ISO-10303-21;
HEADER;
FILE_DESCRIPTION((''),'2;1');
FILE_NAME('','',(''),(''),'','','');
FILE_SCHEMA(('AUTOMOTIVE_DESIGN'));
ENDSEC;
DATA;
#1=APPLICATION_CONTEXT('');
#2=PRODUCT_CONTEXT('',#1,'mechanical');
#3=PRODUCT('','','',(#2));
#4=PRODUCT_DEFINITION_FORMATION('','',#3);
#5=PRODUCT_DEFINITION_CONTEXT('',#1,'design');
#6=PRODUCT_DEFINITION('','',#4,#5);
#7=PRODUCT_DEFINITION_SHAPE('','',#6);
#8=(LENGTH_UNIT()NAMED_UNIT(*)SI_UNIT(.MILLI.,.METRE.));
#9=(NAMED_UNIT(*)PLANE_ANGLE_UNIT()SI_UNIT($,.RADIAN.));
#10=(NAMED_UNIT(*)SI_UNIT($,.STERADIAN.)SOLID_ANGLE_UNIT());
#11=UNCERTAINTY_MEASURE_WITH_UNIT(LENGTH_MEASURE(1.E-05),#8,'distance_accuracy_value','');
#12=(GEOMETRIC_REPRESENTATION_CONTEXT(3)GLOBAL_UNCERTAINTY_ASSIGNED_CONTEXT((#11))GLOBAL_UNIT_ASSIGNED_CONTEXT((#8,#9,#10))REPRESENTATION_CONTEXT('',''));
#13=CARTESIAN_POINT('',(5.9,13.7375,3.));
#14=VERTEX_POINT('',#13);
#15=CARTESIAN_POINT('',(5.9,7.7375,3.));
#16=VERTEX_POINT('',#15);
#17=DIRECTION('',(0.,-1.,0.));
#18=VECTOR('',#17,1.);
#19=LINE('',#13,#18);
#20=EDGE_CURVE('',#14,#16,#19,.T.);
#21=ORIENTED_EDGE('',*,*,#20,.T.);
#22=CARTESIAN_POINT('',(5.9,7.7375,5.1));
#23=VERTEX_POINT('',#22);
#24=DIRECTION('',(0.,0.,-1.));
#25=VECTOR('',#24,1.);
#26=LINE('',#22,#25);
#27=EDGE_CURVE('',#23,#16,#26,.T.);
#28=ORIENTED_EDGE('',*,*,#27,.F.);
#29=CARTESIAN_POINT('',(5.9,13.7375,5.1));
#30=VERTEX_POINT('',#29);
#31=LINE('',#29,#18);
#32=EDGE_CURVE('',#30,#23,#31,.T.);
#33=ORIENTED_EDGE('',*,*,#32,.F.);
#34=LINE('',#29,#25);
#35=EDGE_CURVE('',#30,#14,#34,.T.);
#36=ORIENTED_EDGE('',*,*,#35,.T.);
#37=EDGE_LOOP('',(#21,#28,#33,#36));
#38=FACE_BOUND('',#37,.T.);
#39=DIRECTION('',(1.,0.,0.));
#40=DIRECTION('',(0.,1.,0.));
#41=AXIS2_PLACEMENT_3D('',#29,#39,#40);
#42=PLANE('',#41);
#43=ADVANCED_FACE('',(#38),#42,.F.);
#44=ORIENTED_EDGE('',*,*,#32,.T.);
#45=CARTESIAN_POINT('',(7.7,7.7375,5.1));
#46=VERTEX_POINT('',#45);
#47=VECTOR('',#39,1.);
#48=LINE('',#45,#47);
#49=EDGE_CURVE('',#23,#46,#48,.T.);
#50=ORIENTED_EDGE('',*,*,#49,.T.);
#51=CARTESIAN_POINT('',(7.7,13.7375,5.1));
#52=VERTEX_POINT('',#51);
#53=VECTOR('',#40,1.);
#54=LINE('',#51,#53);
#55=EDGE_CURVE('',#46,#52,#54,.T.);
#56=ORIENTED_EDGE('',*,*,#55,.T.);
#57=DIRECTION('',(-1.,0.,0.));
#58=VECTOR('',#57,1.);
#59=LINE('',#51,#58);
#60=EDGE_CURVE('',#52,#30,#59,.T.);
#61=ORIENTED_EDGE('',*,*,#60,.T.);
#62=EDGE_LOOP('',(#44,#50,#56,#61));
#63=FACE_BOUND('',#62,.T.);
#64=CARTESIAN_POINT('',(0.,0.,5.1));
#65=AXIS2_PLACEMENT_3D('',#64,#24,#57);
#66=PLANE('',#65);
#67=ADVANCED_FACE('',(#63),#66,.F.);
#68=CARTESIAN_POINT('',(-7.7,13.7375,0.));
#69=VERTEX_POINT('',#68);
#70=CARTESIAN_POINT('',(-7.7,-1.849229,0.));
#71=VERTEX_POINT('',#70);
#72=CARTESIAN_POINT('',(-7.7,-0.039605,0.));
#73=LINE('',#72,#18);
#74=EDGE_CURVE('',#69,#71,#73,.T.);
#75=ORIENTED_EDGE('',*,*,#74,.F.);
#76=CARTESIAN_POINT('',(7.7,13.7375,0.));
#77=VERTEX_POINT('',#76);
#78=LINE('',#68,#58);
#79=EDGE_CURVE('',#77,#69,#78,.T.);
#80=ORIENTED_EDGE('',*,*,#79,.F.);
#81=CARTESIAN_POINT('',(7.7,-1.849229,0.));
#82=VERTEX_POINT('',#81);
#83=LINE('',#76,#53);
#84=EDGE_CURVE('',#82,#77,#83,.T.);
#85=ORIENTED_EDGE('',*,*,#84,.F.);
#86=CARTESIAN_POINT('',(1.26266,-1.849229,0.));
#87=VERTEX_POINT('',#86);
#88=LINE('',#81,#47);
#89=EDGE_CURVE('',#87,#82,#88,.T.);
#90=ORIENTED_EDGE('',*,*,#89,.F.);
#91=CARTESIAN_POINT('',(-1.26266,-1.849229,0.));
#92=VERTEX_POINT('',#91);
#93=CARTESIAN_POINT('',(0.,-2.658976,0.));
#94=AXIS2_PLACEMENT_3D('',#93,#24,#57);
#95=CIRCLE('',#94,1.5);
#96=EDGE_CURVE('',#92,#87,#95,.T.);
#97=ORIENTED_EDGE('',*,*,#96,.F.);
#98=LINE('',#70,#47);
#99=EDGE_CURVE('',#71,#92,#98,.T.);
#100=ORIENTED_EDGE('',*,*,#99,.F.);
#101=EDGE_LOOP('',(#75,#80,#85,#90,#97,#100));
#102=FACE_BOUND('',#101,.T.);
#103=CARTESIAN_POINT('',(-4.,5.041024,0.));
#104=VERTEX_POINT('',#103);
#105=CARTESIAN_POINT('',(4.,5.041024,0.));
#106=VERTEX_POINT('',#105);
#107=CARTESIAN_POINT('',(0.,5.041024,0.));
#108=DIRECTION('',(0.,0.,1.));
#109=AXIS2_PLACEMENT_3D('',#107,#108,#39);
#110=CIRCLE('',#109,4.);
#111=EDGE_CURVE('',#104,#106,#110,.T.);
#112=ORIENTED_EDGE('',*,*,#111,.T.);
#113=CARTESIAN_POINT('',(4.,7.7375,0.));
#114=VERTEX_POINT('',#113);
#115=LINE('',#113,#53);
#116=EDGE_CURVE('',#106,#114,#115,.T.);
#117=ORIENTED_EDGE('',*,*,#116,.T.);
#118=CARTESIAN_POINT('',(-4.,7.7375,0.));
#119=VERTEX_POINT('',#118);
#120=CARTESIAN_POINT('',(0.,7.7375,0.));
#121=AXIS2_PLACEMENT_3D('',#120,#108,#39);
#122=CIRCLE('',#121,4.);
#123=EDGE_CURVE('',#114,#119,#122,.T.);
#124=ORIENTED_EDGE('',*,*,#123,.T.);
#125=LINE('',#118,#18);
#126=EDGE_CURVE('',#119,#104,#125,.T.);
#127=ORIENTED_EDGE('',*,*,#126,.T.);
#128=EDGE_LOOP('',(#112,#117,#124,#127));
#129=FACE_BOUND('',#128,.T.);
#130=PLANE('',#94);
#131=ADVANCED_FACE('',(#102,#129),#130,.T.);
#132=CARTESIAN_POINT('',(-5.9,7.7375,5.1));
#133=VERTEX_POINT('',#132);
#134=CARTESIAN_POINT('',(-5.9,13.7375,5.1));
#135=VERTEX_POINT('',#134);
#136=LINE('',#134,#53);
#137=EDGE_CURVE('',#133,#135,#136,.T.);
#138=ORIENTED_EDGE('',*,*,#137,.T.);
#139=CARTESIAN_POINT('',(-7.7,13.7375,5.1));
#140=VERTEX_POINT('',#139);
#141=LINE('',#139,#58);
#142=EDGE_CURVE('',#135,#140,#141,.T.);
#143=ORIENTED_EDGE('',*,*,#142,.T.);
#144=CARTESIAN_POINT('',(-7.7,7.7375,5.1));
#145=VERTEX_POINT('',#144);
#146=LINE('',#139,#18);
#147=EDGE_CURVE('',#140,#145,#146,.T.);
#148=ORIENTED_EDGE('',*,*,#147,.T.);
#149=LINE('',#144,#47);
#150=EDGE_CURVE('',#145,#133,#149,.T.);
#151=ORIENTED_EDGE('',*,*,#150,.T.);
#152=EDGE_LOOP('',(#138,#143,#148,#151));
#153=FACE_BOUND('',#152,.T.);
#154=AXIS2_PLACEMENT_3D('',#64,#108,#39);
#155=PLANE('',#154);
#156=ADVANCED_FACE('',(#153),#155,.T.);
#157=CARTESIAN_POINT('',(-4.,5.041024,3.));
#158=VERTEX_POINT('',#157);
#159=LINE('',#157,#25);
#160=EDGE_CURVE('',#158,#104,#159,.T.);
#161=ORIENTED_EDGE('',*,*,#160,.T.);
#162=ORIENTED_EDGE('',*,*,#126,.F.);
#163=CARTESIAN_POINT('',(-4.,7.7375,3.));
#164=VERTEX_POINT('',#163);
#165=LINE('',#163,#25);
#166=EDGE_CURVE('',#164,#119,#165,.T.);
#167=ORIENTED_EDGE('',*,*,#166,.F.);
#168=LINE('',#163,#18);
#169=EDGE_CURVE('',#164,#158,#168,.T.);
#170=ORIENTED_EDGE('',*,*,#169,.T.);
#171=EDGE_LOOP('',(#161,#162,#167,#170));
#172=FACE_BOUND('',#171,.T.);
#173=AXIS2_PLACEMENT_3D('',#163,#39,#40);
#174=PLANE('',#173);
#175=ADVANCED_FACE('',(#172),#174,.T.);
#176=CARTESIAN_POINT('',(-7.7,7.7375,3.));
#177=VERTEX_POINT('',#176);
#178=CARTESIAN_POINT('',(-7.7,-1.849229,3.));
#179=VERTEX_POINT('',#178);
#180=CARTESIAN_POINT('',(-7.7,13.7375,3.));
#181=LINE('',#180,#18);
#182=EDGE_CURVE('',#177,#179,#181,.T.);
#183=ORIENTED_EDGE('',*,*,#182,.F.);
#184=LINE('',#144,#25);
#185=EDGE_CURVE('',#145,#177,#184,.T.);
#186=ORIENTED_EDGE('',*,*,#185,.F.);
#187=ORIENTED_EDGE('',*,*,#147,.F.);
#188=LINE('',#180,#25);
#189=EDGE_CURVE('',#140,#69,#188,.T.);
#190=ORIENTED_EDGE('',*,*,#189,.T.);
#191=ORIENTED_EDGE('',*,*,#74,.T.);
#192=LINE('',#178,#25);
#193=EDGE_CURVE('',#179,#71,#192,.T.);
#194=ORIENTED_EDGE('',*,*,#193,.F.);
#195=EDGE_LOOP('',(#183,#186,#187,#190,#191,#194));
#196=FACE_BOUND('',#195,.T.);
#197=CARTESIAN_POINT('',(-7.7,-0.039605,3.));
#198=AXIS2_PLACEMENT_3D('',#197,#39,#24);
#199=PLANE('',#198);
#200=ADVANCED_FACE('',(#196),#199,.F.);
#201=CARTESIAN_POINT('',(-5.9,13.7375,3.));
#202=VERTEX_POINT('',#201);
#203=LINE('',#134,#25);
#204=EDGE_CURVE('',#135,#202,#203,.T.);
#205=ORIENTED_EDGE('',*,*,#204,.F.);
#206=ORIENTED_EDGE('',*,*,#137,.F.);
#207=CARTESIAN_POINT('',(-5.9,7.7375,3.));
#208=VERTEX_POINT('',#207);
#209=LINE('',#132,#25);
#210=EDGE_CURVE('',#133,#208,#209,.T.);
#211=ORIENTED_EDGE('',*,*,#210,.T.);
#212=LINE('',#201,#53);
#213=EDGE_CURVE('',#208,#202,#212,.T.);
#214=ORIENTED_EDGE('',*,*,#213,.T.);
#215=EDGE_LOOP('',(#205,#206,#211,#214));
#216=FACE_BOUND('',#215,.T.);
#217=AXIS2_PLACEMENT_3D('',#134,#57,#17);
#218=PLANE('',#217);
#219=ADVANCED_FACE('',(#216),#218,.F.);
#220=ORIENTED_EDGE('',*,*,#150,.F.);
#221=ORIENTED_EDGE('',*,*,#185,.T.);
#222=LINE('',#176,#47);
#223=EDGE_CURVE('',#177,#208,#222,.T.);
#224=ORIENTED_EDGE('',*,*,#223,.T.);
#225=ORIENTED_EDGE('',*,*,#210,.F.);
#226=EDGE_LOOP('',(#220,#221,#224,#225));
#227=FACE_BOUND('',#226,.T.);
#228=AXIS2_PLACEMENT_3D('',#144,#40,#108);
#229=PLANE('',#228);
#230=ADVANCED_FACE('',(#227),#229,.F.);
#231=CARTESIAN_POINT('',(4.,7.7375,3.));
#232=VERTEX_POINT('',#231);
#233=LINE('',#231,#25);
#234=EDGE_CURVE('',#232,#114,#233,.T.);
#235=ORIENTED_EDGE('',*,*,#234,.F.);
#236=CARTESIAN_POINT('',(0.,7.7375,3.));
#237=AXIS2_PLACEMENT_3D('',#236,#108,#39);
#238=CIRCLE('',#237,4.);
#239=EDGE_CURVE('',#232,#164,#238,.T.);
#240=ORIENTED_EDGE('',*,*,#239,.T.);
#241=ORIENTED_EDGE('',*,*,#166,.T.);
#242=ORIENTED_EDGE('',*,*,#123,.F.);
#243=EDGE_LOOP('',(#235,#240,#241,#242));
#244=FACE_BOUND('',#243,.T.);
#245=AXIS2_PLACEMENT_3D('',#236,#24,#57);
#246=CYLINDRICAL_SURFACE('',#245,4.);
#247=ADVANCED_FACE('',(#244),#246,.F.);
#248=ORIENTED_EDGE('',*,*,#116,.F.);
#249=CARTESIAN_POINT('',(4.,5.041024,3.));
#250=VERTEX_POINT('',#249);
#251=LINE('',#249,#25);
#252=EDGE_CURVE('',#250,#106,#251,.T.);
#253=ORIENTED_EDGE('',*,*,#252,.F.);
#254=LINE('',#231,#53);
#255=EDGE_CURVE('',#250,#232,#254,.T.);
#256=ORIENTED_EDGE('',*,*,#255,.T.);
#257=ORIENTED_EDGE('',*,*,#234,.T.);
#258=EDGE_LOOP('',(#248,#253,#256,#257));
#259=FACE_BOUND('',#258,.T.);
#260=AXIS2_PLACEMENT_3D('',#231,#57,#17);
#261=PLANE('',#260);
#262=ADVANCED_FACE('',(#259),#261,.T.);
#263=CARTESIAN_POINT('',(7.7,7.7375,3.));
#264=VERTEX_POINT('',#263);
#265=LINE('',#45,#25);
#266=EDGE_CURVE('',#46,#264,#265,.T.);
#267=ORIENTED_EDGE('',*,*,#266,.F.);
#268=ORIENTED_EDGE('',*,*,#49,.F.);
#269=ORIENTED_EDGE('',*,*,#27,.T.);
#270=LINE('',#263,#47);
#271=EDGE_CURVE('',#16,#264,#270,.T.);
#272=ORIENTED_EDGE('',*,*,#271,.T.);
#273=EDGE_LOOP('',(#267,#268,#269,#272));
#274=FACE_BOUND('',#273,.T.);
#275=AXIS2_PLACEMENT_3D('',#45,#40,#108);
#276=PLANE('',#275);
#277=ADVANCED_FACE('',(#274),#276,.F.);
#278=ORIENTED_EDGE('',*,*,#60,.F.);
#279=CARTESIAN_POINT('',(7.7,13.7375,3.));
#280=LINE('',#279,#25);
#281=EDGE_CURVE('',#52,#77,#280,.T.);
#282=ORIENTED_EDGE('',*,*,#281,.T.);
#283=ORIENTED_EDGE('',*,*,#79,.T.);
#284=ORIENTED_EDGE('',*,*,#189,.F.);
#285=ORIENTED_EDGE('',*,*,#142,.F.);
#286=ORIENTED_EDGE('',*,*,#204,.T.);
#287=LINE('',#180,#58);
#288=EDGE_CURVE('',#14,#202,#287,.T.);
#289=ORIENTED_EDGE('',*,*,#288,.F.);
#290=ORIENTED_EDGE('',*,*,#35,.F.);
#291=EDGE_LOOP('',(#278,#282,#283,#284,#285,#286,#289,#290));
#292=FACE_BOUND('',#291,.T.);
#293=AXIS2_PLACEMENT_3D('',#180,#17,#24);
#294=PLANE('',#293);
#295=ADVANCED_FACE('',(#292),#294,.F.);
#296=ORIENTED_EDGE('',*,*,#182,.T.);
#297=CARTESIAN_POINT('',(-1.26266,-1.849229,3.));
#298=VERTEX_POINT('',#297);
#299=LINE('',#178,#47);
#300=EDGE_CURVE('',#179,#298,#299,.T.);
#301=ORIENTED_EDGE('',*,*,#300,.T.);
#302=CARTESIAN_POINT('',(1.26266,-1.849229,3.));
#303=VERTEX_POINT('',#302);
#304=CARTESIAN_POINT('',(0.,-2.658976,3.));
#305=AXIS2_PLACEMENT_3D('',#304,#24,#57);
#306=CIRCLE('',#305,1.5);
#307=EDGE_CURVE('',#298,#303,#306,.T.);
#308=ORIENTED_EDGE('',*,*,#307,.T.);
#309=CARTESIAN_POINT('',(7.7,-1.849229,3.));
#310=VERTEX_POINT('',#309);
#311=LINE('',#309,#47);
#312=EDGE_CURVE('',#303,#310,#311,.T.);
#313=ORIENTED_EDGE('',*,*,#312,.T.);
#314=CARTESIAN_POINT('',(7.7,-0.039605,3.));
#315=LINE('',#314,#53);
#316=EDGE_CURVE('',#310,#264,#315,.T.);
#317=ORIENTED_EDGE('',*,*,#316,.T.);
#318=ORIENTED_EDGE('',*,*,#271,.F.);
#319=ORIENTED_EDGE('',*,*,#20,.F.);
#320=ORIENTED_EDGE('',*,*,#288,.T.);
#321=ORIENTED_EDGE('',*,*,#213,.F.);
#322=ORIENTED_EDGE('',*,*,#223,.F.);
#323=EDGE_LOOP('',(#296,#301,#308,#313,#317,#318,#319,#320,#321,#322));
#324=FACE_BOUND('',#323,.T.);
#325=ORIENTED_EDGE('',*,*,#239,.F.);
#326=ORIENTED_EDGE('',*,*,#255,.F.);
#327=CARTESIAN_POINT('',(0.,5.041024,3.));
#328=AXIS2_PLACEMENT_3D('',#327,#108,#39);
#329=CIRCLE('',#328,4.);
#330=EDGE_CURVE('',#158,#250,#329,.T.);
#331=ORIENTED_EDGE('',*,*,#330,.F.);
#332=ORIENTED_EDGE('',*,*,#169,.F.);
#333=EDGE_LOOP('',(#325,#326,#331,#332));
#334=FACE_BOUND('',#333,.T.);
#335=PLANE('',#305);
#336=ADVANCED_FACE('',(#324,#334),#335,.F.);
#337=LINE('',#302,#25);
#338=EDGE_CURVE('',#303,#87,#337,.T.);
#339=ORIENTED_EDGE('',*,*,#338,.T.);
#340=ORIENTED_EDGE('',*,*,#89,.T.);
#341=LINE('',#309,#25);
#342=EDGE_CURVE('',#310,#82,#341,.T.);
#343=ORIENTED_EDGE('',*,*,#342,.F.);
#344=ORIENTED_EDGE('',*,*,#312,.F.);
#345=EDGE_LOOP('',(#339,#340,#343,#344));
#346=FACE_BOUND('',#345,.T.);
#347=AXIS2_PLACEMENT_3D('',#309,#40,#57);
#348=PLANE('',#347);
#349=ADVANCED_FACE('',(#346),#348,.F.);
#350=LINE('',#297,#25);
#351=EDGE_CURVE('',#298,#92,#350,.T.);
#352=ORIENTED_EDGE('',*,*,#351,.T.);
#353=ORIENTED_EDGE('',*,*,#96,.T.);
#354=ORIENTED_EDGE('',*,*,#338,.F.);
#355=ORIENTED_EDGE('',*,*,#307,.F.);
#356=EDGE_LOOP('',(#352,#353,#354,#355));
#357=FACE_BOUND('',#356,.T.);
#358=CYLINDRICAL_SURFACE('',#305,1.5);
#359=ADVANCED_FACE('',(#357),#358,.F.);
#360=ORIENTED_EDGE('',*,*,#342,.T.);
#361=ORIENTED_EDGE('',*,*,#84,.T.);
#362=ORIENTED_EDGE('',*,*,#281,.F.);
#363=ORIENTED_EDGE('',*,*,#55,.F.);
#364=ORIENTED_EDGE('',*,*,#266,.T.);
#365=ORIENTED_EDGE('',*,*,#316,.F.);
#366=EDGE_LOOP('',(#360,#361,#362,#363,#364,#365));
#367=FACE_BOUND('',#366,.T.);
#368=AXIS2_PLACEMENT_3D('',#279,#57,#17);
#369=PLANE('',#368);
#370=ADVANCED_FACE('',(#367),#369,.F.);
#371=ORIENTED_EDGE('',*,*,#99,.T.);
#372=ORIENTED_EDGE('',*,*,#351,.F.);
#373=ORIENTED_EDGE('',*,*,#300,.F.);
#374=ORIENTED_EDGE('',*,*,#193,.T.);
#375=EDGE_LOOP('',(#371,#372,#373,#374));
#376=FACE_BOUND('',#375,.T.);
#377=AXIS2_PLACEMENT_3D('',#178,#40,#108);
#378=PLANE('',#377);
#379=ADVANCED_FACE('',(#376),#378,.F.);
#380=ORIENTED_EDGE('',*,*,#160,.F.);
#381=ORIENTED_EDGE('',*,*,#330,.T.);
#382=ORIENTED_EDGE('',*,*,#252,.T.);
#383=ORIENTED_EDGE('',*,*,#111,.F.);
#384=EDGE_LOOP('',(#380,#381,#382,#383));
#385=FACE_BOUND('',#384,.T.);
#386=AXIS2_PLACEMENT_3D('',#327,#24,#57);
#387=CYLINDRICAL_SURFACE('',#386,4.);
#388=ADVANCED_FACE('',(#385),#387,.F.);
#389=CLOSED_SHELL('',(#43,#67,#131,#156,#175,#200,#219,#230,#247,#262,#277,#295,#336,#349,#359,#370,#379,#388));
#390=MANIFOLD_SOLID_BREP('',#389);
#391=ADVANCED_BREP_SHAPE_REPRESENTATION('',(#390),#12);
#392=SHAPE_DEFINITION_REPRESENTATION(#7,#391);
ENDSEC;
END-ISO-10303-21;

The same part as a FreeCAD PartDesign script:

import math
import FreeCAD as App
import Part
import Sketcher
from FreeCAD import Vector
Q = App.Units.Quantity

doc = App.newDocument("Part")
params = doc.addObject("Spreadsheet::Sheet", "Params")
for row, (alias, value) in enumerate([
    ("sketch1_radius", "4 mm"),
    ("sketch1_radius2", "1.5 mm"),
    ("sketch1_width", "15.4 mm"),
    ("pad1_length", "3 mm"),
    ("sketch2_height", "6 mm"),
    ("sketch2_width", "1.8 mm"),
    ("pad2_length", "2.1 mm"),
], start=1):
    params.set(f"A{row}", alias)
    params.set(f"B{row}", "=" + value)
    params.setAlias(f"B{row}", alias)

body = doc.addObject("PartDesign::Body", "Body")

sketch1 = body.newObject("Sketcher::SketchObject", "Sketch")
sketch1.AttachmentSupport = (doc.getObject("XY_Plane"), [""])
sketch1.MapMode = "FlatFace"
sketch1.addGeometry([
    Part.LineSegment(Vector(7.7, 13.7, 0), Vector(-7.7, 13.7, 0)),
    Part.LineSegment(Vector(-7.7, 13.7, 0), Vector(-7.7, -1.8, 0)),
    Part.LineSegment(Vector(-7.7, -1.8, 0), Vector(-1.3, -1.8, 0)),
    Part.ArcOfCircle(Part.Circle(Vector(0, -2.7, 0), Vector(0, 0, 1), 1.5), math.radians(33), math.radians(147)),
    Part.LineSegment(Vector(1.3, -1.8, 0), Vector(7.7, -1.8, 0)),
    Part.LineSegment(Vector(7.7, -1.8, 0), Vector(7.7, 13.7, 0)),
    Part.LineSegment(Vector(4, 7.7, 0), Vector(4, 5, 0)),
    Part.ArcOfCircle(Part.Circle(Vector(0, 5, 0), Vector(0, 0, 1), 4), math.radians(180), math.radians(360)),
    Part.LineSegment(Vector(-4, 5, 0), Vector(-4, 7.7, 0)),
    Part.ArcOfCircle(Part.Circle(Vector(0, 7.7, 0), Vector(0, 0, 1), 4), math.radians(0), math.radians(180)),
], False)
sketch1.addConstraint([
    Sketcher.Constraint("Coincident", 0, 2, 1, 1),
    Sketcher.Constraint("Coincident", 1, 2, 2, 1),
    Sketcher.Constraint("Coincident", 2, 2, 3, 2),
    Sketcher.Constraint("Coincident", 3, 1, 4, 1),
    Sketcher.Constraint("Coincident", 4, 2, 5, 1),
    Sketcher.Constraint("Coincident", 5, 2, 0, 1),
    Sketcher.Constraint("Tangent", 6, 2, 7, 2),
    Sketcher.Constraint("Tangent", 7, 1, 8, 1),
    Sketcher.Constraint("Tangent", 8, 2, 9, 2),
    Sketcher.Constraint("Tangent", 9, 1, 6, 1),
    Sketcher.Constraint("Horizontal", 0),
    Sketcher.Constraint("Vertical", 1),
    Sketcher.Constraint("Horizontal", 2),
    Sketcher.Constraint("Horizontal", 4),
    Sketcher.Constraint("Vertical", 5),
    Sketcher.Constraint("Vertical", 6),
    Sketcher.Constraint("Vertical", 8),
    Sketcher.Constraint("Symmetric", 2, 2, 3, 1, -2),
    Sketcher.Constraint("PointOnObject", 7, 3, -2),
    Sketcher.Constraint("Equal", 2, 4),
    Sketcher.Constraint("Radius", 7, Q("4 mm")),
    Sketcher.Constraint("Radius", 3, Q("1.5 mm")),
    Sketcher.Constraint("DistanceX", 0, 2, 0, 1, Q("15.4 mm")),
    Sketcher.Constraint("DistanceY", 9, 3, 0, 2, Q("6 mm")),
    Sketcher.Constraint("DistanceY", 3, 3, 7, 3, Q("7.7 mm")),
    Sketcher.Constraint("DistanceX", 2, 1, 2, 2, Q("6.43734 mm")),
    Sketcher.Constraint("DistanceY", 1, 2, 1, 1, Q("15.586729 mm")),
    Sketcher.Constraint("DistanceY", -1, 1, 9, 3, Q("7.7375 mm")),
])
sketch1.setExpression("Constraints[20]", "Params.sketch1_radius")
sketch1.setExpression("Constraints[21]", "Params.sketch1_radius2")
sketch1.setExpression("Constraints[22]", "Params.sketch1_width")
pad1 = body.newObject("PartDesign::Pad", "Pad")
pad1.Profile = sketch1
pad1.setExpression("Length", "Params.pad1_length")

sketch2 = body.newObject("Sketcher::SketchObject", "Sketch001")
sketch2.AttachmentSupport = (doc.getObject("XY_Plane"), [""])
sketch2.MapMode = "FlatFace"
sketch2.AttachmentOffset = App.Placement(Vector(0, 0, 3), App.Rotation())
sketch2.addGeometry([
    Part.LineSegment(Vector(-7.7, 13.7, 0), Vector(-7.7, 7.7, 0)),
    Part.LineSegment(Vector(-7.7, 7.7, 0), Vector(-5.9, 7.7, 0)),
    Part.LineSegment(Vector(-5.9, 7.7, 0), Vector(-5.9, 13.7, 0)),
    Part.LineSegment(Vector(-5.9, 13.7, 0), Vector(-7.7, 13.7, 0)),
    Part.LineSegment(Vector(5.9, 13.7, 0), Vector(5.9, 7.7, 0)),
    Part.LineSegment(Vector(5.9, 7.7, 0), Vector(7.7, 7.7, 0)),
    Part.LineSegment(Vector(7.7, 7.7, 0), Vector(7.7, 13.7, 0)),
    Part.LineSegment(Vector(7.7, 13.7, 0), Vector(5.9, 13.7, 0)),
], False)
sketch2.addConstraint([
    Sketcher.Constraint("Coincident", 0, 2, 1, 1),
    Sketcher.Constraint("Coincident", 1, 2, 2, 1),
    Sketcher.Constraint("Coincident", 2, 2, 3, 1),
    Sketcher.Constraint("Coincident", 3, 2, 0, 1),
    Sketcher.Constraint("Coincident", 4, 2, 5, 1),
    Sketcher.Constraint("Coincident", 5, 2, 6, 1),
    Sketcher.Constraint("Coincident", 6, 2, 7, 1),
    Sketcher.Constraint("Coincident", 7, 2, 4, 1),
    Sketcher.Constraint("Vertical", 0),
    Sketcher.Constraint("Horizontal", 1),
    Sketcher.Constraint("Vertical", 2),
    Sketcher.Constraint("Horizontal", 3),
    Sketcher.Constraint("Vertical", 4),
    Sketcher.Constraint("Horizontal", 5),
    Sketcher.Constraint("Vertical", 6),
    Sketcher.Constraint("Horizontal", 7),
    Sketcher.Constraint("Symmetric", 1, 2, 4, 2, -2),
    Sketcher.Constraint("Symmetric", 3, 2, 6, 2, -2),
    Sketcher.Constraint("DistanceY", 0, 2, 0, 1, Q("6 mm")),
    Sketcher.Constraint("DistanceX", 1, 1, 1, 2, Q("1.8 mm")),
    Sketcher.Constraint("DistanceX", 0, 2, -1, 1, Q("7.7 mm")),
    Sketcher.Constraint("DistanceY", -1, 1, 0, 2, Q("7.7375 mm")),
])
sketch2.setExpression("Constraints[18]", "Params.sketch2_height")
sketch2.setExpression("Constraints[19]", "Params.sketch2_width")
pad2 = body.newObject("PartDesign::Pad", "Pad001")
pad2.Profile = sketch2
pad2.setExpression("Length", "Params.pad2_length")

doc.recompute()
